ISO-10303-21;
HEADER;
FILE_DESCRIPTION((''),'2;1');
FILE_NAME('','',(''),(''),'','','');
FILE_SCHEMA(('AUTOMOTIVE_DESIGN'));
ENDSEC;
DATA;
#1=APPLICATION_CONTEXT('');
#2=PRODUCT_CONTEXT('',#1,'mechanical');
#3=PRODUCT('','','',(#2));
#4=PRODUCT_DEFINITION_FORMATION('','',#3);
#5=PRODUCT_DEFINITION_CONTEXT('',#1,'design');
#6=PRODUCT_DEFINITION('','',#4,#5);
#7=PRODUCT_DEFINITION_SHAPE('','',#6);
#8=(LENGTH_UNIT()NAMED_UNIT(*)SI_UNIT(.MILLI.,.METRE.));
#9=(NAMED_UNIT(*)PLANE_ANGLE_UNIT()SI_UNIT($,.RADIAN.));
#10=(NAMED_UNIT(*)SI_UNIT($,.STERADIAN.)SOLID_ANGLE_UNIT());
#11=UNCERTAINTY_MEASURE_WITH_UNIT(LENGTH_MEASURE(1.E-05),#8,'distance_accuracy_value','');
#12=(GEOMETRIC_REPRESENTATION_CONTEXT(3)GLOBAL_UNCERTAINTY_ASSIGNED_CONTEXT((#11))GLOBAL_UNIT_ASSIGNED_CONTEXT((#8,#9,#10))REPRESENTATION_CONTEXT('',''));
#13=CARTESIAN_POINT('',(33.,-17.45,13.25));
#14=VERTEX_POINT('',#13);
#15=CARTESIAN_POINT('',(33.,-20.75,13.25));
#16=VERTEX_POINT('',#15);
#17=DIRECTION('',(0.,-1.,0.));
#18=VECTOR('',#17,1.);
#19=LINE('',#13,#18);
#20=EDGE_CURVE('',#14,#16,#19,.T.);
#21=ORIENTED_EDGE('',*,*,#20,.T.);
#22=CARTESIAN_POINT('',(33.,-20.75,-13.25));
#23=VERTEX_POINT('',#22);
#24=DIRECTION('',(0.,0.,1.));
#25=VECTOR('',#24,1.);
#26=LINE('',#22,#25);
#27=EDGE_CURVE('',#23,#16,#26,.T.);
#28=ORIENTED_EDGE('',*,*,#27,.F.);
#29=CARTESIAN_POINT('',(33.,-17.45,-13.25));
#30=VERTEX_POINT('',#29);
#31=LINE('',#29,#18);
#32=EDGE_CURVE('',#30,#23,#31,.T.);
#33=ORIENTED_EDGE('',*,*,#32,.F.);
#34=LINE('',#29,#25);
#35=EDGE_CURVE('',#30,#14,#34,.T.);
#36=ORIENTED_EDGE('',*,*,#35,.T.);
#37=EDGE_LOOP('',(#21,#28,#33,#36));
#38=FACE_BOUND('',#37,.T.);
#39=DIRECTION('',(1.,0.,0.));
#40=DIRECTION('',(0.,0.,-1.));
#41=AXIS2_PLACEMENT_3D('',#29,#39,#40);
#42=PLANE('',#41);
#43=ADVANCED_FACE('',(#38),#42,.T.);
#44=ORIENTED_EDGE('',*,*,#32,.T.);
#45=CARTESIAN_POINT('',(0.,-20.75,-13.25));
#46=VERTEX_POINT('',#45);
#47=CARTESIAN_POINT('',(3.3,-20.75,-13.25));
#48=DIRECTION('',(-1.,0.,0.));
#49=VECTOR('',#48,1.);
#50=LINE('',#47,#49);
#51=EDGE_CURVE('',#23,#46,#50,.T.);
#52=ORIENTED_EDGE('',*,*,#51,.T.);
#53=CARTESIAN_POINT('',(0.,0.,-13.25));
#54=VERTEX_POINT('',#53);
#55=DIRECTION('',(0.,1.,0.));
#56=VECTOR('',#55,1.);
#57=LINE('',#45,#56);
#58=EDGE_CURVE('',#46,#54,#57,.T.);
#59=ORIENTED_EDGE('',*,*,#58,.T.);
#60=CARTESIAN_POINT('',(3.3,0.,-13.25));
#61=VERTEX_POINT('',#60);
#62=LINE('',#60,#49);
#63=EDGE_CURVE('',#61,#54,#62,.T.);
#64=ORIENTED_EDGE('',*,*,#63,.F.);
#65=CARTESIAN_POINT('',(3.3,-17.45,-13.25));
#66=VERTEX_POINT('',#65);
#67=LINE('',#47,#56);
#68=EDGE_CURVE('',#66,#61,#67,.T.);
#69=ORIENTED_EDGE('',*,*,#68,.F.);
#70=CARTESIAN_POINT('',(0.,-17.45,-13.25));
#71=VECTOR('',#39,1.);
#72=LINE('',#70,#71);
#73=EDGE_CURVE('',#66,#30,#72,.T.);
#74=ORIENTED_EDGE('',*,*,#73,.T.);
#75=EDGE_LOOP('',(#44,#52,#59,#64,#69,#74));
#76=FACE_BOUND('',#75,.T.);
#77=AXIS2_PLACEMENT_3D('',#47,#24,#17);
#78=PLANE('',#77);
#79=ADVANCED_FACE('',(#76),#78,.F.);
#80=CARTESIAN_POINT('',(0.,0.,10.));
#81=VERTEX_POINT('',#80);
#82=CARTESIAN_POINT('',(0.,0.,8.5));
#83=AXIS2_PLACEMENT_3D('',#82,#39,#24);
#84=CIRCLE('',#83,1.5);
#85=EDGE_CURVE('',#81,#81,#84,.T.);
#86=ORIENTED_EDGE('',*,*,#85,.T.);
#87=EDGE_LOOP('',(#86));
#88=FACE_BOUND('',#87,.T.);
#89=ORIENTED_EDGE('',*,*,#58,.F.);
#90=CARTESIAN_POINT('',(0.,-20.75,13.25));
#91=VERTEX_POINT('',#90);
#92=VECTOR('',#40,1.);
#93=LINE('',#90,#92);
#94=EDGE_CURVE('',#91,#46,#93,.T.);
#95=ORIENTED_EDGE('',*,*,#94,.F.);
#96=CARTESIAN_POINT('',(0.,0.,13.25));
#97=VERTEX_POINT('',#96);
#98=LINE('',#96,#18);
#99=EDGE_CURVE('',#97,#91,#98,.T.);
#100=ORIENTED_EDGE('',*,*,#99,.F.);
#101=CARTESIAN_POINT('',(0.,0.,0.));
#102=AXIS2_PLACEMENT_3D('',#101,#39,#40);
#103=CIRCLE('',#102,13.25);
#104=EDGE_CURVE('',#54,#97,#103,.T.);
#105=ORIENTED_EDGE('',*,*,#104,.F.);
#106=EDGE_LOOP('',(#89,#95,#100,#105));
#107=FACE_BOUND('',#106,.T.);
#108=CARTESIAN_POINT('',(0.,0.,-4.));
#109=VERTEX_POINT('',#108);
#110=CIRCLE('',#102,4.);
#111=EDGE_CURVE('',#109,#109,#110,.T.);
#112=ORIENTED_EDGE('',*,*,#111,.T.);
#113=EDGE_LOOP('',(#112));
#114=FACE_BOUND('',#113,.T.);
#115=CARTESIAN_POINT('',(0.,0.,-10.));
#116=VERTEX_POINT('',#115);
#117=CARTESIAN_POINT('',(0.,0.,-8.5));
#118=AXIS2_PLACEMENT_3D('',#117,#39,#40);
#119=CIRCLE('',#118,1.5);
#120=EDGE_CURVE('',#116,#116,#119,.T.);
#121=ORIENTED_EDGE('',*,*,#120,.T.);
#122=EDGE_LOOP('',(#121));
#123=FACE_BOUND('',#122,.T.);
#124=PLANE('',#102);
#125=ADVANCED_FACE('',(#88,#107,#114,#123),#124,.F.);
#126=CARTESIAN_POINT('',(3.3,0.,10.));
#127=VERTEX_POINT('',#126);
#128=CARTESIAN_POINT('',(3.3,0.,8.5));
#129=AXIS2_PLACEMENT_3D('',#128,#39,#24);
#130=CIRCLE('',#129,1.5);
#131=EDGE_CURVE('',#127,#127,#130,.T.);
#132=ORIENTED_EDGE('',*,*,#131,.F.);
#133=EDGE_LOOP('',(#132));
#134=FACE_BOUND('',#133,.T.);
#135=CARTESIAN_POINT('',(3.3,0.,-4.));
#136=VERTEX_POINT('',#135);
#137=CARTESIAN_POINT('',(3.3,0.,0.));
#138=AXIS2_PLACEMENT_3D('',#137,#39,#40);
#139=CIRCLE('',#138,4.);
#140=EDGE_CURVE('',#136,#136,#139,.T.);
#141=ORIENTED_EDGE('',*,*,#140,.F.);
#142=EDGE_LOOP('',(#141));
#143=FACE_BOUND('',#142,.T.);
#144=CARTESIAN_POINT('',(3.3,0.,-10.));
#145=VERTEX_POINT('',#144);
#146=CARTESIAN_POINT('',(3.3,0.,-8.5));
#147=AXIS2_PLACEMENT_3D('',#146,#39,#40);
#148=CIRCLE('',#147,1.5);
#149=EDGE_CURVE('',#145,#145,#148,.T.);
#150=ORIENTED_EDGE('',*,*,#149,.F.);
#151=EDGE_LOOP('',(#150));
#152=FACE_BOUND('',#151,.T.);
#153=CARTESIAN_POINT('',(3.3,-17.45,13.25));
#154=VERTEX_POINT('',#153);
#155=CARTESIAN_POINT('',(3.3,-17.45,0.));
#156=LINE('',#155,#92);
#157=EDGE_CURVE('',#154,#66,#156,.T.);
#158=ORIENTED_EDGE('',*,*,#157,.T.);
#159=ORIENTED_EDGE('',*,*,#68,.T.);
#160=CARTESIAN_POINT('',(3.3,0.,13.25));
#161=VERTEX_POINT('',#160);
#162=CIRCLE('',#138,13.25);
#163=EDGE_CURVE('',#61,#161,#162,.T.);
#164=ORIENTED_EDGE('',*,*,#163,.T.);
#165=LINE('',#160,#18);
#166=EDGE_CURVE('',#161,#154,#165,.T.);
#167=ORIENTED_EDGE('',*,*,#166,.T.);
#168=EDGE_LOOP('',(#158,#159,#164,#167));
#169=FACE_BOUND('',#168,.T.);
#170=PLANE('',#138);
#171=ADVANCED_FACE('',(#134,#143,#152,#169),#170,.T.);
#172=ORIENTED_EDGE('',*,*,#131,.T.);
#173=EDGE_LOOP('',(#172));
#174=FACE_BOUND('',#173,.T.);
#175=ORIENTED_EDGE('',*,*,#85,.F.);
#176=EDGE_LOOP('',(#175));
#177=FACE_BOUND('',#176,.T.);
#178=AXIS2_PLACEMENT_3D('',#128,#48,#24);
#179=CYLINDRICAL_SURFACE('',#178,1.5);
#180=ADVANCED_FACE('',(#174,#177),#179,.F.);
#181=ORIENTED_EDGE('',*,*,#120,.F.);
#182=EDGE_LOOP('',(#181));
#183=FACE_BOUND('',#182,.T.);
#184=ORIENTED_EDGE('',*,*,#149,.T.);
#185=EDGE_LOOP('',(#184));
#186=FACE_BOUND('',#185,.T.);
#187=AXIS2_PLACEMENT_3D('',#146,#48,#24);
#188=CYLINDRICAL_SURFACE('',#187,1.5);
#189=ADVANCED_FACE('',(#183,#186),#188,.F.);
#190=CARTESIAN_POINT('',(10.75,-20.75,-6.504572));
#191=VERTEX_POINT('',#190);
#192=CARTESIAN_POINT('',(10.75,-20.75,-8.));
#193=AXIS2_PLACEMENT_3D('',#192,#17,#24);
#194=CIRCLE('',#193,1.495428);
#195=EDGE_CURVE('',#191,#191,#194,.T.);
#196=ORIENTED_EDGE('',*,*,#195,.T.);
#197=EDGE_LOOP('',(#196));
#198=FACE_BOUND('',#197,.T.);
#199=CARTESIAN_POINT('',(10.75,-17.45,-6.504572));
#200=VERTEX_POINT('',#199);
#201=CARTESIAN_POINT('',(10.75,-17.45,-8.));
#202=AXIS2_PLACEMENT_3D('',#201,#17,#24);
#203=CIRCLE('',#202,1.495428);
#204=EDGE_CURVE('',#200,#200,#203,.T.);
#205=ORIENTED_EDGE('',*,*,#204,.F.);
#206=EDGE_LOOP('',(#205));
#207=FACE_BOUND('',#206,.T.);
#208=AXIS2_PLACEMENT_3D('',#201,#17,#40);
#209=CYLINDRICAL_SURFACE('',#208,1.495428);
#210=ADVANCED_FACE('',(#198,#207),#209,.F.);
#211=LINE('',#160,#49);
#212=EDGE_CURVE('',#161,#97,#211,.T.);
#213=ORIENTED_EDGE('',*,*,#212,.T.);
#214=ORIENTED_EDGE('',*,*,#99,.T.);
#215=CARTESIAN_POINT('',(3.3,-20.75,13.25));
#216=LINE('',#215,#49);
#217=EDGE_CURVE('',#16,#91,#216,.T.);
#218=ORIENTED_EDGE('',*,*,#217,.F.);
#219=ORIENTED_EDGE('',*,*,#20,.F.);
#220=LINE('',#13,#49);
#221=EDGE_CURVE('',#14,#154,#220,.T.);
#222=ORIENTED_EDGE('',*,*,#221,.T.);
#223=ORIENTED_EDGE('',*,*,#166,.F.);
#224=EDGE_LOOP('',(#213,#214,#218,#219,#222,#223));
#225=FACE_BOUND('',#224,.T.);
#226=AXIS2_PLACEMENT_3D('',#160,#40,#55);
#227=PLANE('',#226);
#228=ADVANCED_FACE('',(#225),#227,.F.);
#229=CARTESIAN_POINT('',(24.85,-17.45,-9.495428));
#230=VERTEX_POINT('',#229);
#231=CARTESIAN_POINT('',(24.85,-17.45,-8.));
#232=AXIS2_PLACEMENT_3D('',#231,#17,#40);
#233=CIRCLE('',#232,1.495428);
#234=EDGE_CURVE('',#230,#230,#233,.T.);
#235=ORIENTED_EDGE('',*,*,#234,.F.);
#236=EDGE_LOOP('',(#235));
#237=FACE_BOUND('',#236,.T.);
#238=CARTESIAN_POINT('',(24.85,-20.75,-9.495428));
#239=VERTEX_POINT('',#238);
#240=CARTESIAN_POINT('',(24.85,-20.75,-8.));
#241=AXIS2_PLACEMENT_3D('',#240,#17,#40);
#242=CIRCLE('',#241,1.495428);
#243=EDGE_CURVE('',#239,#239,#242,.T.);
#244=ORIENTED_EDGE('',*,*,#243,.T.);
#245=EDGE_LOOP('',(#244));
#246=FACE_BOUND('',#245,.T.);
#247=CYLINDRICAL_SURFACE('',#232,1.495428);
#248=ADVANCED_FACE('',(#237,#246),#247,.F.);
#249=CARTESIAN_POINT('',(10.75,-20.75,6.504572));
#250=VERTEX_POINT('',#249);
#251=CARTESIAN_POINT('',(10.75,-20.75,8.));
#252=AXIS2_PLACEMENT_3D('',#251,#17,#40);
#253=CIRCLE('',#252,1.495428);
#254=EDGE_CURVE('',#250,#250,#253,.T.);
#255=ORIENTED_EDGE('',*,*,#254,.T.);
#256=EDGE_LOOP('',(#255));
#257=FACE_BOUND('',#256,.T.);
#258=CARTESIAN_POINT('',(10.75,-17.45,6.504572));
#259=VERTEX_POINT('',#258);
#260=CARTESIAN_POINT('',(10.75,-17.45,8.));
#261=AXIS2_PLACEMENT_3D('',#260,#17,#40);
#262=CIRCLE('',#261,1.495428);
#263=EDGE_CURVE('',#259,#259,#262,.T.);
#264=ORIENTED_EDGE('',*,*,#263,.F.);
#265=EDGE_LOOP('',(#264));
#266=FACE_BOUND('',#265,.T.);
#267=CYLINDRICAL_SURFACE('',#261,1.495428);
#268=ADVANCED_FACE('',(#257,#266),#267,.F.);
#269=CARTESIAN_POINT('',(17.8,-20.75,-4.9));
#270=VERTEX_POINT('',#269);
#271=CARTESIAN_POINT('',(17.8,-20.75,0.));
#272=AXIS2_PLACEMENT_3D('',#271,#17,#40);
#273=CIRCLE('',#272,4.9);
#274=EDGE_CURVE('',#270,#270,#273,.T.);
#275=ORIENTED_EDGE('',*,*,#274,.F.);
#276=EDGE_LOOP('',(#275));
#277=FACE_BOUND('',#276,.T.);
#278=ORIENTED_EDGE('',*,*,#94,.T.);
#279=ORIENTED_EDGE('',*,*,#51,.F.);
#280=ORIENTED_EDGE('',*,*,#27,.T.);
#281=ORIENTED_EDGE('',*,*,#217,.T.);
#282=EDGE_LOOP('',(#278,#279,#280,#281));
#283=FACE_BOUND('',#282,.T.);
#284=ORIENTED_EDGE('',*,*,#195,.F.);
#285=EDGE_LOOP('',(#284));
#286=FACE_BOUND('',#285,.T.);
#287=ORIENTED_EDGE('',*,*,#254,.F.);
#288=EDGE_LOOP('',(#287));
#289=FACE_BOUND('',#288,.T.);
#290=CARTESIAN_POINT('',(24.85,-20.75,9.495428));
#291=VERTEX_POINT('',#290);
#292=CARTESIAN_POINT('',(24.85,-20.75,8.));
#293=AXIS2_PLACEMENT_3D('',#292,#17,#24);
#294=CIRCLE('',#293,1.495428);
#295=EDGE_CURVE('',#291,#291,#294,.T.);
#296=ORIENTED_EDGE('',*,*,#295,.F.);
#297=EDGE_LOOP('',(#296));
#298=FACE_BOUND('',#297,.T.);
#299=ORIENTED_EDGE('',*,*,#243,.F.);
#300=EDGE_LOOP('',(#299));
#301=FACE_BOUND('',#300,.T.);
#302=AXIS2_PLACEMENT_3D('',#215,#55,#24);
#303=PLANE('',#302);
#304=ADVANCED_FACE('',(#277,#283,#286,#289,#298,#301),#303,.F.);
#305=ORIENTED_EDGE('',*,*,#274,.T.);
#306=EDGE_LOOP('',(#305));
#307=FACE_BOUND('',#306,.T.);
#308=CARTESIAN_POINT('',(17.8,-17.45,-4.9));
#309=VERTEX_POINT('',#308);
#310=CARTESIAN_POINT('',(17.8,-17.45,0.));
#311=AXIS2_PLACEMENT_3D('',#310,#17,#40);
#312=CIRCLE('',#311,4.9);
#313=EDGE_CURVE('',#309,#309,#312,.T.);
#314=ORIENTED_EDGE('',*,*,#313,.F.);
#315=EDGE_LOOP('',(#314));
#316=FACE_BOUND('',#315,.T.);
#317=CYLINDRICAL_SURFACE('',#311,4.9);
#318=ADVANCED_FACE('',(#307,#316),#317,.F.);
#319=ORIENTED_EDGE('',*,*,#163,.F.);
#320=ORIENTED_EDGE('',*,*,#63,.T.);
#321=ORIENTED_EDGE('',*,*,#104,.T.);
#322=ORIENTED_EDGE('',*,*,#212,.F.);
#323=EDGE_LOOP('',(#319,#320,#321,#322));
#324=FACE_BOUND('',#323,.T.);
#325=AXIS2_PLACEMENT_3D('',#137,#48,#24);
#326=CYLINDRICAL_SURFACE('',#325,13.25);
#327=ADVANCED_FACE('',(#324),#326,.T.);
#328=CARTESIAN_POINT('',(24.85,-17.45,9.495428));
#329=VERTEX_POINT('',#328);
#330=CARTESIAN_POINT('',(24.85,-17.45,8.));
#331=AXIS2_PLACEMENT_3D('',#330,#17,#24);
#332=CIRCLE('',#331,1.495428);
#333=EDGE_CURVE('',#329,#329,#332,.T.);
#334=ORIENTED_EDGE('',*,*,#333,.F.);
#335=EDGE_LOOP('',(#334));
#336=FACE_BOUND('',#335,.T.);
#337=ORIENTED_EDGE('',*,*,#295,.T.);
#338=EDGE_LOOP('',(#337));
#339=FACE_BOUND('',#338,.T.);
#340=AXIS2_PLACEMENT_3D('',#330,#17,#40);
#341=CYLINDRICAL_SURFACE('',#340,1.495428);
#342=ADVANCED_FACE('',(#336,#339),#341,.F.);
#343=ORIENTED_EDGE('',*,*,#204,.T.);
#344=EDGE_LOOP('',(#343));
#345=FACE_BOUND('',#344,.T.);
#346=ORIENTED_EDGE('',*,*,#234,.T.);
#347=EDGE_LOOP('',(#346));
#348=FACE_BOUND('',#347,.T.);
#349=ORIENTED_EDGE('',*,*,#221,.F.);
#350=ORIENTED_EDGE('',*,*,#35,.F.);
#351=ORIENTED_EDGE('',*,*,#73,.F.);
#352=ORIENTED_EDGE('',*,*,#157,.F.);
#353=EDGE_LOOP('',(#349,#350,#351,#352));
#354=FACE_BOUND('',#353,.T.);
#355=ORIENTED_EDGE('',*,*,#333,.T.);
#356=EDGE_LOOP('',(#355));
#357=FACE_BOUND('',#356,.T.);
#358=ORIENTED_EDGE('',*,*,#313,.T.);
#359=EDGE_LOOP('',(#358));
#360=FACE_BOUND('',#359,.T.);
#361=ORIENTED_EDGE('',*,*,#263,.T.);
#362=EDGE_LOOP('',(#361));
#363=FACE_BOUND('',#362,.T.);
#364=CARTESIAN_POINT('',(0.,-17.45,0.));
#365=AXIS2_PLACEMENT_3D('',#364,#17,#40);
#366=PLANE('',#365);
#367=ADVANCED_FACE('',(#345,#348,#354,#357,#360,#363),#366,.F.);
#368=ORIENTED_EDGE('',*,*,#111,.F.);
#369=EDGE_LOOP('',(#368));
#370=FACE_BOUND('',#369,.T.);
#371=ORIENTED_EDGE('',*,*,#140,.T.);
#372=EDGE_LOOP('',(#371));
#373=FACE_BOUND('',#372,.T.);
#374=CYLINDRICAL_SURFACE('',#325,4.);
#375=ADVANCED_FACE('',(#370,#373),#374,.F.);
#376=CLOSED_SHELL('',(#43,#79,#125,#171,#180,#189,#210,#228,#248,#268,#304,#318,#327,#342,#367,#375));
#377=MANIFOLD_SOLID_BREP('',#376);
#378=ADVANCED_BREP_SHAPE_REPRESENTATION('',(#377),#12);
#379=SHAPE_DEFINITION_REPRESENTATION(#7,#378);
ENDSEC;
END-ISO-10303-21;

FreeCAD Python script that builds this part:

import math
import FreeCAD as App
import Part
import Sketcher

V = App.Vector

doc = App.newDocument("Part")
params = doc.addObject("Spreadsheet::Sheet", "Params")
for row, (alias, value) in enumerate([
    ("sketch1_diameter", "3 mm"),
    ("sketch1_diameter2", "8 mm"),
    ("sketch1_radius", "13.25 mm"),
    ("sketch1_width", "20.75 mm"),
    ("pad1_length", "3.3 mm"),
    ("sketch2_diameter", "9.8 mm"),
    ("sketch2_width", "33 mm"),
    ("sketch2_height", "26.5 mm"),
    ("pad2_length", "3.3 mm"),
], start=1):
    params.set(f"A{row}", alias)
    params.set(f"B{row}", "=" + value)
    params.setAlias(f"B{row}", alias)

body = doc.addObject("PartDesign::Body", "Body")

# Sketch on YZ plane
sketch1 = body.newObject("Sketcher::SketchObject", "Sketch")
sketch1.AttachmentSupport = (doc.getObject("YZ_Plane"), [""])
sketch1.MapMode = "FlatFace"
sketch1.addGeometry([
    Part.LineSegment(V(0, 13.2, 0), V(-20.8, 13.2, 0)),  # 0
    Part.LineSegment(V(-20.8, 13.2, 0), V(-20.8, -13.2, 0)),  # 1
    Part.LineSegment(V(-20.8, -13.2, 0), V(0, -13.2, 0)),  # 2
    Part.ArcOfCircle(Part.Circle(V(0, 0, 0), V(0, 0, 1), 13.2), math.radians(-90), math.radians(90)),  # 3
    Part.Circle(V(0, 8.5, 0), V(0, 0, 1), 1.5),  # 4
    Part.Circle(V(0, 0, 0), V(0, 0, 1), 4),  # 5
    Part.Circle(V(0, -8.5, 0), V(0, 0, 1), 1.5),  # 6
], False)
sketch1.addConstraint([
    Sketcher.Constraint("Coincident", 0, 2, 1, 1),
    Sketcher.Constraint("Coincident", 1, 2, 2, 1),
    Sketcher.Constraint("Tangent", 2, 2, 3, 1),
    Sketcher.Constraint("Tangent", 3, 2, 0, 1),
    Sketcher.Constraint("Horizontal", 0),
    Sketcher.Constraint("Vertical", 1),
    Sketcher.Constraint("Horizontal", 2),
    Sketcher.Constraint("Coincident", 3, 3, -1, 1),
    Sketcher.Constraint("Coincident", 5, 3, -1, 1),
    Sketcher.Constraint("Equal", 4, 6),
    Sketcher.Constraint("Symmetric", 4, 3, 6, 3, -1, 1),
    Sketcher.Constraint("PointOnObject", 4, 3, -2),
    Sketcher.Constraint("Diameter", 4, 3.0),
    Sketcher.Constraint("Diameter", 5, 8.0),
    Sketcher.Constraint("Radius", 3, 13.25),
    Sketcher.Constraint("DistanceY", 6, 3, 4, 3, 17.0),
    Sketcher.Constraint("DistanceX", 0, 2, 0, 1, 20.75),
])
sketch1.setExpression("Constraints[12]", "Params.sketch1_diameter")
sketch1.setExpression("Constraints[13]", "Params.sketch1_diameter2")
sketch1.setExpression("Constraints[14]", "Params.sketch1_radius")
sketch1.setExpression("Constraints[16]", "Params.sketch1_width")
pad1 = body.newObject("PartDesign::Pad", "Pad")
pad1.Profile = sketch1
pad1.setExpression("Length", "Params.pad1_length")

# Sketch on XZ plane
sketch2 = body.newObject("Sketcher::SketchObject", "Sketch001")
sketch2.AttachmentSupport = (doc.getObject("XZ_Plane"), [""])
sketch2.MapMode = "FlatFace"
sketch2.AttachmentOffset = App.Placement(V(0, 0, 20.75), App.Rotation())
sketch2.addGeometry([
    Part.LineSegment(V(0, 13.2, 0), V(0, -13.2, 0)),  # 0
    Part.LineSegment(V(0, -13.2, 0), V(33, -13.2, 0)),  # 1
    Part.LineSegment(V(33, -13.2, 0), V(33, 13.2, 0)),  # 2
    Part.LineSegment(V(33, 13.2, 0), V(0, 13.2, 0)),  # 3
    Part.Circle(V(10.8, -8, 0), V(0, 0, 1), 1.5),  # 4
    Part.Circle(V(24.9, -8, 0), V(0, 0, 1), 1.5),  # 5
    Part.Circle(V(10.8, 8, 0), V(0, 0, 1), 1.5),  # 6
    Part.Circle(V(17.8, 0, 0), V(0, 0, 1), 4.9),  # 7
    Part.Circle(V(24.9, 8, 0), V(0, 0, 1), 1.5),  # 8
], False)
sketch2.addConstraint([
    Sketcher.Constraint("Coincident", 0, 2, 1, 1),
    Sketcher.Constraint("Coincident", 1, 2, 2, 1),
    Sketcher.Constraint("Coincident", 2, 2, 3, 1),
    Sketcher.Constraint("Coincident", 3, 2, 0, 1),
    Sketcher.Constraint("Vertical", 0),
    Sketcher.Constraint("Horizontal", 1),
    Sketcher.Constraint("Vertical", 2),
    Sketcher.Constraint("Horizontal", 3),
    Sketcher.Constraint("Equal", 4, 5),
    Sketcher.Constraint("Equal", 5, 6),
    Sketcher.Constraint("Equal", 6, 8),
    Sketcher.Constraint("Symmetric", 0, 2, 3, 2, -1, 1),
    Sketcher.Constraint("Symmetric", 4, 3, 6, 3, -1),
    Sketcher.Constraint("Symmetric", 5, 3, 8, 3, -1),
    Sketcher.Constraint("PointOnObject", 7, 3, -1),
    Sketcher.Constraint("Horizontal", 4, 3, 5, 3),
    Sketcher.Constraint("Diameter", 7, 9.8),
    Sketcher.Constraint("DistanceX", 1, 1, 1, 2, 33.0),
    Sketcher.Constraint("DistanceY", 0, 2, 0, 1, 26.5),
    Sketcher.Constraint("DistanceY", 4, 3, -1, 1, 8.0),
    Sketcher.Constraint("DistanceX", -1, 1, 7, 3, 17.8),
    Sketcher.Constraint("DistanceX", 4, 3, 5, 3, 14.1),
    Sketcher.Constraint("DistanceX", -1, 1, 4, 3, 10.75),
    Sketcher.Constraint("Diameter", 4, 2.990856),
])
sketch2.setExpression("Constraints[16]", "Params.sketch2_diameter")
sketch2.setExpression("Constraints[17]", "Params.sketch2_width")
sketch2.setExpression("Constraints[18]", "Params.sketch2_height")
pad2 = body.newObject("PartDesign::Pad", "Pad001")
pad2.Profile = sketch2
pad2.setExpression("Length", "Params.pad2_length")
pad2.Reversed = True

doc.recompute()
